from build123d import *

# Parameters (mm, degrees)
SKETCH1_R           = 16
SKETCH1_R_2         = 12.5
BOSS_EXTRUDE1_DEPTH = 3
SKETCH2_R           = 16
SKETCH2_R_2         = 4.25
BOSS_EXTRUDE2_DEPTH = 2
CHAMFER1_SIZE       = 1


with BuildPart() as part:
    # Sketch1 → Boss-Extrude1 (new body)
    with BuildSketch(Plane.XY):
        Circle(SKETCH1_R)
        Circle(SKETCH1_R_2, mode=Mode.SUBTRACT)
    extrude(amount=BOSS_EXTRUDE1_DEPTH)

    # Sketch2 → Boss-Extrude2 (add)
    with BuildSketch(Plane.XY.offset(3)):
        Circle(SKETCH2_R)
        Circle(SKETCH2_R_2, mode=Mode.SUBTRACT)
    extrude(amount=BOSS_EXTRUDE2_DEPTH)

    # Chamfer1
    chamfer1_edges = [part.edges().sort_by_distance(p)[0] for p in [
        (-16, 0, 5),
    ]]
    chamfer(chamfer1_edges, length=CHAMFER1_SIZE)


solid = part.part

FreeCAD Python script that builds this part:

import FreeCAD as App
import Part
import Sketcher

V = App.Vector
Q = App.Units.Quantity


def edges_at(feature, points):
    """Names of the edges that pass closest to the given points."""
    edges = feature.Shape.Edges
    near = lambda p: min(range(len(edges)), key=lambda i: edges[i].distToShape(Part.Vertex(*p))[0])
    return sorted({f"Edge{near(p) + 1}" for p in points})

doc = App.newDocument("Part")
body = doc.addObject("PartDesign::Body", "Body")

# Sketch on XY plane
sketch1 = doc.addObject("Sketcher::SketchObject", "Sketch")
body.addObject(sketch1)
sketch1.AttachmentSupport = (doc.XY_Plane, [""])
sketch1.MapMode = "FlatFace"
sketch1.addGeometry(Part.Circle(V(0, 0, 0), V(0, 0, 1), 16), False)
sketch1.addGeometry(Part.Circle(V(0, 0, 0), V(0, 0, 1), 12), False)
sketch1.addConstraint(Sketcher.Constraint("Coincident", 0, 3, -1, 1))
sketch1.addConstraint(Sketcher.Constraint("Coincident", 1, 3, -1, 1))
sketch1.addConstraint(Sketcher.Constraint("Diameter", 0, Q("32 mm")))
sketch1.addConstraint(Sketcher.Constraint("Diameter", 1, Q("25 mm")))
pad1 = doc.addObject("PartDesign::Pad", "Pad")
body.addObject(pad1)
pad1.Profile = sketch1
pad1.Length = 3

# Sketch on XY plane
sketch2 = doc.addObject("Sketcher::SketchObject", "Sketch001")
body.addObject(sketch2)
sketch2.AttachmentSupport = (doc.XY_Plane, [""])
sketch2.MapMode = "FlatFace"
sketch2.AttachmentOffset = App.Placement(V(0, 0, 3), App.Rotation())
sketch2.addGeometry(Part.Circle(V(0, 0, 0), V(0, 0, 1), 16), False)
sketch2.addGeometry(Part.Circle(V(0, 0, 0), V(0, 0, 1), 4.2), False)
sketch2.addConstraint(Sketcher.Constraint("Coincident", 0, 3, -1, 1))
sketch2.addConstraint(Sketcher.Constraint("Coincident", 1, 3, -1, 1))
sketch2.addConstraint(Sketcher.Constraint("Diameter", 0, Q("32 mm")))
sketch2.addConstraint(Sketcher.Constraint("Diameter", 1, Q("8.5 mm")))
pad2 = doc.addObject("PartDesign::Pad", "Pad001")
body.addObject(pad2)
pad2.Profile = sketch2
pad2.Length = 2
doc.recompute()

chamfer = doc.addObject("PartDesign::Chamfer", "Chamfer")
body.addObject(chamfer)
chamfer.Base = (pad2, edges_at(pad2, [(-16, 0, 5)]))
chamfer.Size = 1

doc.recompute()
